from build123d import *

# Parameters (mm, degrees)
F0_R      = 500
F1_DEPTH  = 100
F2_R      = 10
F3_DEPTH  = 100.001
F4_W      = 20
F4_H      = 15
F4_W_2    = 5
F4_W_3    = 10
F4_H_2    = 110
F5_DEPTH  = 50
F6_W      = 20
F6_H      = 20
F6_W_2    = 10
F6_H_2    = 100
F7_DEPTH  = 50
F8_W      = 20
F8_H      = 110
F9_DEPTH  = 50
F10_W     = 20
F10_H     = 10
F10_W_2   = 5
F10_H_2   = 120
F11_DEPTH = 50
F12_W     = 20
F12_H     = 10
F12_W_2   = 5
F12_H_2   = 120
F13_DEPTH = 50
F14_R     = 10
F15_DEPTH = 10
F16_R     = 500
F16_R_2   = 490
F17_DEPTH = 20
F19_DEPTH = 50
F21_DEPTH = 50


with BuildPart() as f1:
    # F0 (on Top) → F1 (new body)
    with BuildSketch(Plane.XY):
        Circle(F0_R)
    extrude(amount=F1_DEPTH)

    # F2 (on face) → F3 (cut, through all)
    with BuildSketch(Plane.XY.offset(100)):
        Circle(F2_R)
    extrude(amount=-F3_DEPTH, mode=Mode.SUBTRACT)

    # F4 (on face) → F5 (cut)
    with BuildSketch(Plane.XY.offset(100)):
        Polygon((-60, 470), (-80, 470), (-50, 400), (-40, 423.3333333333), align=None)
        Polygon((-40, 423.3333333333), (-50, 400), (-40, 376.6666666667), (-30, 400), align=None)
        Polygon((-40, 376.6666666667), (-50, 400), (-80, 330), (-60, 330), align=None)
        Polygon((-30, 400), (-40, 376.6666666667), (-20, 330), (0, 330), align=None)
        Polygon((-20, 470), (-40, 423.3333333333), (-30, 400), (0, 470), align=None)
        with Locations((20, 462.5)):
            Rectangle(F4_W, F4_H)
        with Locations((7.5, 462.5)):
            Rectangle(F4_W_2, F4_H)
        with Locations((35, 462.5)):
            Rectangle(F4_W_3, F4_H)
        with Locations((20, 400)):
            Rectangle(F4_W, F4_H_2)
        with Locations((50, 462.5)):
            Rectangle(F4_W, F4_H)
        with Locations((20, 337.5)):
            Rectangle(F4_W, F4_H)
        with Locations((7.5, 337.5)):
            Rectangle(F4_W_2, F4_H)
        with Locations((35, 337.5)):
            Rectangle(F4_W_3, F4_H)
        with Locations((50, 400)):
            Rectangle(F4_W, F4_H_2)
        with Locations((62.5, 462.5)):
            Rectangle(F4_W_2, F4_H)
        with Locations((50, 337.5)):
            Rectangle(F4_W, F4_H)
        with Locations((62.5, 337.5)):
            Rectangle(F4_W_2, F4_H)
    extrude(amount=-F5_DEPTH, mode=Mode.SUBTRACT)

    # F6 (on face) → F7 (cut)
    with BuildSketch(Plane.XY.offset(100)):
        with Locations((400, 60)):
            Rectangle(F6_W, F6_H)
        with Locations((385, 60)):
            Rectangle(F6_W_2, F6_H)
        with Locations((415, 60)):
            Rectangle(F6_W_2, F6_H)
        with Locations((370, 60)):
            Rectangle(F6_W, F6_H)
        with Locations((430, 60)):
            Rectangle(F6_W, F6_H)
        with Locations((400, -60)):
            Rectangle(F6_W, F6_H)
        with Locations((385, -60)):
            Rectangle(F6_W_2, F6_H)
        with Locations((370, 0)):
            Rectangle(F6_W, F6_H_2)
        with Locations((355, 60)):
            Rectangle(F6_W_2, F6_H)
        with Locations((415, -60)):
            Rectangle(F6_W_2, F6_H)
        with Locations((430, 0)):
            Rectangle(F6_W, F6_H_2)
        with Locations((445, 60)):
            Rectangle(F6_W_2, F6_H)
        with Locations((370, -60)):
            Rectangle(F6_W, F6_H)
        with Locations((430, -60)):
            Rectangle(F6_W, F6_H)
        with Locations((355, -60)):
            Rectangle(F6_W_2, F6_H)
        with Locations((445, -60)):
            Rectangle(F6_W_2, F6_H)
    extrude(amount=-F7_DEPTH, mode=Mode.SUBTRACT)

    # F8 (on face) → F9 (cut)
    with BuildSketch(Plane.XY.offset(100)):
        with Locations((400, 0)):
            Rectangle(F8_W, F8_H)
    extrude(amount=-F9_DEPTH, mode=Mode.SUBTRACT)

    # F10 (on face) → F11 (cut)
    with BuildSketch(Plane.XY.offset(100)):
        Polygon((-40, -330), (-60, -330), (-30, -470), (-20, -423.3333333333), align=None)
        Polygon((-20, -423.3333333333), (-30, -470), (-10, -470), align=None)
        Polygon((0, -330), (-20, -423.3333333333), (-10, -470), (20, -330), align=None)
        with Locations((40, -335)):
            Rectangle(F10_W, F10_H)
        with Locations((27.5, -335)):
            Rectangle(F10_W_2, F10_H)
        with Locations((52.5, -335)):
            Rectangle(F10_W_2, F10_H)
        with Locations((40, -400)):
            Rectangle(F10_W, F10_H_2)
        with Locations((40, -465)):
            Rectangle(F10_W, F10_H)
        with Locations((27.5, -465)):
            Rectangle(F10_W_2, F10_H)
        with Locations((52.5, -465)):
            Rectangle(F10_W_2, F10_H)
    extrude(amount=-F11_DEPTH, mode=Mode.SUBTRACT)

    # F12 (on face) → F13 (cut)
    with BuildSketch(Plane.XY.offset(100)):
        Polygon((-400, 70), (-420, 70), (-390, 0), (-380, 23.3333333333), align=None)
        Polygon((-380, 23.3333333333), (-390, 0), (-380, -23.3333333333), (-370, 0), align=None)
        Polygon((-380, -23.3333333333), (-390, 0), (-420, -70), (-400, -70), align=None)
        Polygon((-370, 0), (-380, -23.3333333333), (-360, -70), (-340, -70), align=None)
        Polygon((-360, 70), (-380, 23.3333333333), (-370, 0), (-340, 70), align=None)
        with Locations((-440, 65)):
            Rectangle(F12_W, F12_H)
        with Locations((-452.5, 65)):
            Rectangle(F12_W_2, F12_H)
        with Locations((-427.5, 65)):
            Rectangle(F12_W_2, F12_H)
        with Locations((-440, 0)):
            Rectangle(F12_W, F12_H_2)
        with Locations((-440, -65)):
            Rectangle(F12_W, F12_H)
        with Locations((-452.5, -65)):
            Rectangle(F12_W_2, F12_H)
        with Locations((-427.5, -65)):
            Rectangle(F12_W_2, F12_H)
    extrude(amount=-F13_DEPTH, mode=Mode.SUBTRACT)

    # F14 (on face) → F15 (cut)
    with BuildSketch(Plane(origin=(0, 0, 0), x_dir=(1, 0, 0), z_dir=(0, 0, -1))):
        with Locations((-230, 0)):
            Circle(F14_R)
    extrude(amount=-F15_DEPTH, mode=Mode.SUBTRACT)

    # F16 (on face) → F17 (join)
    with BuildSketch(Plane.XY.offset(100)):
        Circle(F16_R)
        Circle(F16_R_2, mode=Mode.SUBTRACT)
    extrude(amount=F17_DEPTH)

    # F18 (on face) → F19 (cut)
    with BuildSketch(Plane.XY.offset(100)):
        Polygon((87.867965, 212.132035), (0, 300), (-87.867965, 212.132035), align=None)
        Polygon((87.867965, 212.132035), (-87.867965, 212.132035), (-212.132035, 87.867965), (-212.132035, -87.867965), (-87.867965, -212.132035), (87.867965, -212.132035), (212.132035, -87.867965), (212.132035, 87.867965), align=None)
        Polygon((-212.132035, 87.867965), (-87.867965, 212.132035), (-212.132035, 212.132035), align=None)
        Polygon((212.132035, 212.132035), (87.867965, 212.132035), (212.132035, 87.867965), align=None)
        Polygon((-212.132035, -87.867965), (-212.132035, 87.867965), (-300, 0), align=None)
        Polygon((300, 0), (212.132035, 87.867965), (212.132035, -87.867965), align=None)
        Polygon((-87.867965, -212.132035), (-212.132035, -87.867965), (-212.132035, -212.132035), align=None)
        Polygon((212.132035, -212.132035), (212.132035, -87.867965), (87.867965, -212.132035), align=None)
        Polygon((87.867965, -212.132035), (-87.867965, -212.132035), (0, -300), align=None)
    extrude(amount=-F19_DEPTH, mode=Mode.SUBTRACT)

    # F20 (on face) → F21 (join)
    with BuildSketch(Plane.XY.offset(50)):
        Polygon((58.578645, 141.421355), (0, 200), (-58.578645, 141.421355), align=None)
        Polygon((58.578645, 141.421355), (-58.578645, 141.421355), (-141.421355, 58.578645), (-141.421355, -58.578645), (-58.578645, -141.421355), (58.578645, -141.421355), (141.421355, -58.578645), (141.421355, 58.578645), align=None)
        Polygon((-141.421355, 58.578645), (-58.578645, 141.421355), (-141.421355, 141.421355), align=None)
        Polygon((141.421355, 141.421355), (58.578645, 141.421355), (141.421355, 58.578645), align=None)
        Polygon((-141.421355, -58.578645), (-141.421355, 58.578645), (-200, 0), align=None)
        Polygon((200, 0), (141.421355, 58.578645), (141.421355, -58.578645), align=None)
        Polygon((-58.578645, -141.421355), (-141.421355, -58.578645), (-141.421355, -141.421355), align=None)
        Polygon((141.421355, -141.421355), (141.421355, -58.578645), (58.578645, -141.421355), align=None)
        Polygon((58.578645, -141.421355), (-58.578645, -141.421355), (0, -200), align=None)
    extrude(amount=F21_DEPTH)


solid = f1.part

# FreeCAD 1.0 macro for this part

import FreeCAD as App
import Part
import Sketcher

V = App.Vector
Q = App.Units.Quantity

doc = App.newDocument("Part")
body = doc.addObject("PartDesign::Body", "Body")

# Sketch on XY plane
sketch1 = body.newObject("Sketcher::SketchObject", "Sketch")
sketch1.AttachmentSupport = (doc.getObject("XY_Plane"), [""])
sketch1.MapMode = "FlatFace"
sketch1.addGeometry(Part.Circle(V(0, 0, 0), V(0, 0, 1), 500), False)
sketch1.addConstraint(Sketcher.Constraint("Coincident", 0, 3, -1, 1))
sketch1.addConstraint(Sketcher.Constraint("Diameter", 0, Q("1000 mm")))
pad1 = body.newObject("PartDesign::Pad", "Pad")
pad1.Profile = sketch1
pad1.Length = 100

# Sketch on XY plane
sketch2 = body.newObject("Sketcher::SketchObject", "Sketch001")
sketch2.AttachmentSupport = (doc.getObject("XY_Plane"), [""])
sketch2.MapMode = "FlatFace"
sketch2.AttachmentOffset = App.Placement(V(0, 0, 100), App.Rotation())
sketch2.addGeometry(Part.Circle(V(0, 0, 0), V(0, 0, 1), 10), False)
sketch2.addConstraint(Sketcher.Constraint("Coincident", 0, 3, -1, 1))
sketch2.addConstraint(Sketcher.Constraint("Diameter", 0, Q("20 mm")))
pocket1 = body.newObject("PartDesign::Pocket", "Pocket")
pocket1.Profile = sketch2
pocket1.Type = "ThroughAll"

# Sketch on XY plane
sketch3 = body.newObject("Sketcher::SketchObject", "Sketch002")
sketch3.AttachmentSupport = (doc.getObject("XY_Plane"), [""])
sketch3.MapMode = "FlatFace"
sketch3.AttachmentOffset = App.Placement(V(0, 0, 100), App.Rotation())
sketch3.addGeometry(Part.LineSegment(V(-60, 470, 0), V(-80, 470, 0)), False)
sketch3.addGeometry(Part.LineSegment(V(-80, 470, 0), V(-50, 400, 0)), False)
sketch3.addGeometry(Part.LineSegment(V(-50, 400, 0), V(-80, 330, 0)), False)
sketch3.addGeometry(Part.LineSegment(V(-80, 330, 0), V(-60, 330, 0)), False)
sketch3.addGeometry(Part.LineSegment(V(-60, 330, 0), V(-40, 377, 0)), False)
sketch3.addGeometry(Part.LineSegment(V(-40, 377, 0), V(-20, 330, 0)), False)
sketch3.addGeometry(Part.LineSegment(V(-20, 330, 0), V(0, 330, 0)), False)
sketch3.addGeometry(Part.LineSegment(V(0, 330, 0), V(-30, 400, 0)), False)
sketch3.addGeometry(Part.LineSegment(V(-30, 400, 0), V(0, 470, 0)), False)
sketch3.addGeometry(Part.LineSegment(V(0, 470, 0), V(-20, 470, 0)), False)
sketch3.addGeometry(Part.LineSegment(V(-20, 470, 0), V(-40, 423, 0)), False)
sketch3.addGeometry(Part.LineSegment(V(-40, 423, 0), V(-60, 470, 0)), False)
sketch3.addGeometry(Part.LineSegment(V(5, 330, 0), V(65, 330, 0)), False)
sketch3.addGeometry(Part.LineSegment(V(65, 330, 0), V(65, 345, 0)), False)
sketch3.addGeometry(Part.LineSegment(V(65, 345, 0), V(60, 345, 0)), False)
sketch3.addGeometry(Part.LineSegment(V(60, 345, 0), V(60, 455, 0)), False)
sketch3.addGeometry(Part.LineSegment(V(60, 455, 0), V(65, 455, 0)), False)
sketch3.addGeometry(Part.LineSegment(V(65, 455, 0), V(65, 470, 0)), False)
sketch3.addGeometry(Part.LineSegment(V(65, 470, 0), V(5, 470, 0)), False)
sketch3.addGeometry(Part.LineSegment(V(5, 470, 0), V(5, 455, 0)), False)
sketch3.addGeometry(Part.LineSegment(V(5, 455, 0), V(10, 455, 0)), False)
sketch3.addGeometry(Part.LineSegment(V(10, 455, 0), V(10, 345, 0)), False)
sketch3.addGeometry(Part.LineSegment(V(10, 345, 0), V(5, 345, 0)), False)
sketch3.addGeometry(Part.LineSegment(V(5, 345, 0), V(5, 330, 0)), False)
sketch3.addGeometry(Part.LineSegment(V(40, 345, 0), V(30, 345, 0)), False)
sketch3.addGeometry(Part.LineSegment(V(30, 345, 0), V(30, 455, 0)), False)
sketch3.addGeometry(Part.LineSegment(V(30, 455, 0), V(40, 455, 0)), False)
sketch3.addGeometry(Part.LineSegment(V(40, 455, 0), V(40, 345, 0)), False)
sketch3.addConstraint(Sketcher.Constraint("Coincident", 0, 2, 1, 1))
sketch3.addConstraint(Sketcher.Constraint("Coincident", 1, 2, 2, 1))
sketch3.addConstraint(Sketcher.Constraint("Coincident", 2, 2, 3, 1))
sketch3.addConstraint(Sketcher.Constraint("Coincident", 3, 2, 4, 1))
sketch3.addConstraint(Sketcher.Constraint("Coincident", 4, 2, 5, 1))
sketch3.addConstraint(Sketcher.Constraint("Coincident", 5, 2, 6, 1))
sketch3.addConstraint(Sketcher.Constraint("Coincident", 6, 2, 7, 1))
sketch3.addConstraint(Sketcher.Constraint("Coincident", 7, 2, 8, 1))
sketch3.addConstraint(Sketcher.Constraint("Coincident", 8, 2, 9, 1))
sketch3.addConstraint(Sketcher.Constraint("Coincident", 9, 2, 10, 1))
sketch3.addConstraint(Sketcher.Constraint("Coincident", 10, 2, 11, 1))
sketch3.addConstraint(Sketcher.Constraint("Coincident", 11, 2, 0, 1))
sketch3.addConstraint(Sketcher.Constraint("Coincident", 12, 2, 13, 1))
sketch3.addConstraint(Sketcher.Constraint("Coincident", 13, 2, 14, 1))
sketch3.addConstraint(Sketcher.Constraint("Coincident", 14, 2, 15, 1))
sketch3.addConstraint(Sketcher.Constraint("Coincident", 15, 2, 16, 1))
sketch3.addConstraint(Sketcher.Constraint("Coincident", 16, 2, 17, 1))
sketch3.addConstraint(Sketcher.Constraint("Coincident", 17, 2, 18, 1))
sketch3.addConstraint(Sketcher.Constraint("Coincident", 18, 2, 19, 1))
sketch3.addConstraint(Sketcher.Constraint("Coincident", 19, 2, 20, 1))
sketch3.addConstraint(Sketcher.Constraint("Coincident", 20, 2, 21, 1))
sketch3.addConstraint(Sketcher.Constraint("Coincident", 21, 2, 22, 1))
sketch3.addConstraint(Sketcher.Constraint("Coincident", 22, 2, 23, 1))
sketch3.addConstraint(Sketcher.Constraint("Coincident", 23, 2, 12, 1))
sketch3.addConstraint(Sketcher.Constraint("Coincident", 24, 2, 25, 1))
sketch3.addConstraint(Sketcher.Constraint("Coincident", 25, 2, 26, 1))
sketch3.addConstraint(Sketcher.Constraint("Coincident", 26, 2, 27, 1))
sketch3.addConstraint(Sketcher.Constraint("Coincident", 27, 2, 24, 1))
sketch3.addConstraint(Sketcher.Constraint("Horizontal", 0))
sketch3.addConstraint(Sketcher.Constraint("Horizontal", 3))
sketch3.addConstraint(Sketcher.Constraint("Horizontal", 6))
sketch3.addConstraint(Sketcher.Constraint("Horizontal", 9))
sketch3.addConstraint(Sketcher.Constraint("Horizontal", 12))
sketch3.addConstraint(Sketcher.Constraint("Vertical", 13))
sketch3.addConstraint(Sketcher.Constraint("Horizontal", 14))
sketch3.addConstraint(Sketcher.Constraint("Vertical", 15))
sketch3.addConstraint(Sketcher.Constraint("Horizontal", 16))
sketch3.addConstraint(Sketcher.Constraint("Vertical", 17))
sketch3.addConstraint(Sketcher.Constraint("Horizontal", 18))
sketch3.addConstraint(Sketcher.Constraint("Vertical", 19))
sketch3.addConstraint(Sketcher.Constraint("Horizontal", 20))
sketch3.addConstraint(Sketcher.Constraint("Vertical", 21))
sketch3.addConstraint(Sketcher.Constraint("Horizontal", 22))
sketch3.addConstraint(Sketcher.Constraint("Vertical", 23))
sketch3.addConstraint(Sketcher.Constraint("Horizontal", 24))
sketch3.addConstraint(Sketcher.Constraint("Vertical", 25))
sketch3.addConstraint(Sketcher.Constraint("Horizontal", 26))
sketch3.addConstraint(Sketcher.Constraint("Vertical", 27))
sketch3.addConstraint(Sketcher.Constraint("PointOnObject", 6, 2, -2))
sketch3.addConstraint(Sketcher.Constraint("PointOnObject", 8, 2, -2))
sketch3.addConstraint(Sketcher.Constraint("Parallel", 2, 4))
sketch3.addConstraint(Sketcher.Constraint("Parallel", 1, 5))
sketch3.addConstraint(Sketcher.Constraint("Parallel", 5, 7))
sketch3.addConstraint(Sketcher.Constraint("Parallel", 4, 8))
sketch3.addConstraint(Sketcher.Constraint("Parallel", 8, 10))
sketch3.addConstraint(Sketcher.Constraint("Parallel", 7, 11))
sketch3.addConstraint(Sketcher.Constraint("Horizontal", 3, 2, 5, 2))
sketch3.addConstraint(Sketcher.Constraint("Horizontal", 1, 2, 7, 2))
sketch3.addConstraint(Sketcher.Constraint("Horizontal", 0, 2, 8, 2))
sketch3.addConstraint(Sketcher.Constraint("Horizontal", 6, 2, 12, 2))
sketch3.addConstraint(Sketcher.Constraint("Horizontal", 11, 2, 17, 2))
sketch3.addConstraint(Sketcher.Constraint("Horizontal", 16, 2, 19, 2))
sketch3.addConstraint(Sketcher.Constraint("Horizontal", 14, 2, 21, 2))
sketch3.addConstraint(Sketcher.Constraint("Horizontal", 22, 2, 24, 2))
sketch3.addConstraint(Sketcher.Constraint("Horizontal", 20, 2, 25, 2))
sketch3.addConstraint(Sketcher.Constraint("Vertical", 0, 2, 2, 2))
sketch3.addConstraint(Sketcher.Constraint("Vertical", 5, 2, 9, 2))
sketch3.addConstraint(Sketcher.Constraint("Vertical", 4, 2, 10, 2))
sketch3.addConstraint(Sketcher.Constraint("Vertical", 13, 2, 16, 2))
sketch3.addConstraint(Sketcher.Constraint("Vertical", 19, 2, 22, 2))
sketch3.addConstraint(Sketcher.Constraint("Equal", 3, 6))
sketch3.addConstraint(Sketcher.Constraint("Equal", 16, 20))
sketch3.addConstraint(Sketcher.Constraint("Equal", 13, 17))
sketch3.addConstraint(Sketcher.Constraint("DistanceX", 0, 2, 0, 1, Q("20 mm")))
sketch3.addConstraint(Sketcher.Constraint("DistanceX", 12, 1, 12, 2, Q("60 mm")))
sketch3.addConstraint(Sketcher.Constraint("DistanceX", 14, 2, 14, 1, Q("5 mm")))
sketch3.addConstraint(Sketcher.Constraint("DistanceX", 24, 2, 24, 1, Q("10 mm")))
sketch3.addConstraint(Sketcher.Constraint("DistanceY", 13, 1, 13, 2, Q("15 mm")))
sketch3.addConstraint(Sketcher.Constraint("DistanceY", 15, 1, 15, 2, Q("110 mm")))
sketch3.addConstraint(Sketcher.Constraint("DistanceX", 0, 2, -1, 1, Q("80 mm")))
sketch3.addConstraint(Sketcher.Constraint("DistanceY", -1, 1, 0, 2, Q("470 mm")))
sketch3.addConstraint(Sketcher.Constraint("DistanceX", 1, 2, -1, 1, Q("50 mm")))
sketch3.addConstraint(Sketcher.Constraint("DistanceX", -1, 1, 12, 2, Q("65 mm")))
sketch3.addConstraint(Sketcher.Constraint("DistanceX", -1, 1, 24, 2, Q("30 mm")))
pocket2 = body.newObject("PartDesign::Pocket", "Pocket001")
pocket2.Profile = sketch3
pocket2.Length = 50

# Sketch on XY plane
sketch4 = body.newObject("Sketcher::SketchObject", "Sketch003")
sketch4.AttachmentSupport = (doc.getObject("XY_Plane"), [""])
sketch4.MapMode = "FlatFace"
sketch4.AttachmentOffset = App.Placement(V(0, 0, 100), App.Rotation())
sketch4.addGeometry(Part.LineSegment(V(440, -50, 0), V(440, 50, 0)), False)
sketch4.addGeometry(Part.LineSegment(V(440, 50, 0), V(450, 50, 0)), False)
sketch4.addGeometry(Part.LineSegment(V(450, 50, 0), V(450, 70, 0)), False)
sketch4.addGeometry(Part.LineSegment(V(450, 70, 0), V(350, 70, 0)), False)
sketch4.addGeometry(Part.LineSegment(V(350, 70, 0), V(350, 50, 0)), False)
sketch4.addGeometry(Part.LineSegment(V(350, 50, 0), V(360, 50, 0)), False)
sketch4.addGeometry(Part.LineSegment(V(360, 50, 0), V(360, -50, 0)), False)
sketch4.addGeometry(Part.LineSegment(V(360, -50, 0), V(350, -50, 0)), False)
sketch4.addGeometry(Part.LineSegment(V(350, -50, 0), V(350, -70, 0)), False)
sketch4.addGeometry(Part.LineSegment(V(350, -70, 0), V(450, -70, 0)), False)
sketch4.addGeometry(Part.LineSegment(V(450, -70, 0), V(450, -50, 0)), False)
sketch4.addGeometry(Part.LineSegment(V(450, -50, 0), V(440, -50, 0)), False)
sketch4.addGeometry(Part.LineSegment(V(420, 50, 0), V(420, -50, 0)), False)
sketch4.addGeometry(Part.LineSegment(V(420, -50, 0), V(380, -50, 0)), False)
sketch4.addGeometry(Part.LineSegment(V(380, -50, 0), V(380, 50, 0)), False)
sketch4.addGeometry(Part.LineSegment(V(380, 50, 0), V(420, 50, 0)), False)
sketch4.addConstraint(Sketcher.Constraint("Coincident", 0, 2, 1, 1))
sketch4.addConstraint(Sketcher.Constraint("Coincident", 1, 2, 2, 1))
sketch4.addConstraint(Sketcher.Constraint("Coincident", 2, 2, 3, 1))
sketch4.addConstraint(Sketcher.Constraint("Coincident", 3, 2, 4, 1))
sketch4.addConstraint(Sketcher.Constraint("Coincident", 4, 2, 5, 1))
sketch4.addConstraint(Sketcher.Constraint("Coincident", 5, 2, 6, 1))
sketch4.addConstraint(Sketcher.Constraint("Coincident", 6, 2, 7, 1))
sketch4.addConstraint(Sketcher.Constraint("Coincident", 7, 2, 8, 1))
sketch4.addConstraint(Sketcher.Constraint("Coincident", 8, 2, 9, 1))
sketch4.addConstraint(Sketcher.Constraint("Coincident", 9, 2, 10, 1))
sketch4.addConstraint(Sketcher.Constraint("Coincident", 10, 2, 11, 1))
sketch4.addConstraint(Sketcher.Constraint("Coincident", 11, 2, 0, 1))
sketch4.addConstraint(Sketcher.Constraint("Coincident", 12, 2, 13, 1))
sketch4.addConstraint(Sketcher.Constraint("Coincident", 13, 2, 14, 1))
sketch4.addConstraint(Sketcher.Constraint("Coincident", 14, 2, 15, 1))
sketch4.addConstraint(Sketcher.Constraint("Coincident", 15, 2, 12, 1))
sketch4.addConstraint(Sketcher.Constraint("Vertical", 0))
sketch4.addConstraint(Sketcher.Constraint("Horizontal", 1))
sketch4.addConstraint(Sketcher.Constraint("Vertical", 2))
sketch4.addConstraint(Sketcher.Constraint("Horizontal", 3))
sketch4.addConstraint(Sketcher.Constraint("Vertical", 4))
sketch4.addConstraint(Sketcher.Constraint("Horizontal", 5))
sketch4.addConstraint(Sketcher.Constraint("Vertical", 6))
sketch4.addConstraint(Sketcher.Constraint("Horizontal", 7))
sketch4.addConstraint(Sketcher.Constraint("Vertical", 8))
sketch4.addConstraint(Sketcher.Constraint("Horizontal", 9))
sketch4.addConstraint(Sketcher.Constraint("Vertical", 10))
sketch4.addConstraint(Sketcher.Constraint("Horizontal", 11))
sketch4.addConstraint(Sketcher.Constraint("Vertical", 12))
sketch4.addConstraint(Sketcher.Constraint("Horizontal", 13))
sketch4.addConstraint(Sketcher.Constraint("Vertical", 14))
sketch4.addConstraint(Sketcher.Constraint("Horizontal", 15))
sketch4.addConstraint(Sketcher.Constraint("Symmetric", 4, 2, 7, 2, -1))
sketch4.addConstraint(Sketcher.Constraint("Symmetric", 2, 2, 9, 2, -1))
sketch4.addConstraint(Sketcher.Constraint("Horizontal", 1, 2, 4, 2))
sketch4.addConstraint(Sketcher.Constraint("Horizontal", 7, 2, 10, 2))
sketch4.addConstraint(Sketcher.Constraint("Horizontal", 11, 2, 12, 2))
sketch4.addConstraint(Sketcher.Constraint("Horizontal", 5, 2, 14, 2))
sketch4.addConstraint(Sketcher.Constraint("Equal", 1, 5))
sketch4.addConstraint(Sketcher.Constraint("Equal", 9, 0))
sketch4.addConstraint(Sketcher.Constraint("DistanceX", 1, 1, 1, 2, Q("10 mm")))
sketch4.addConstraint(Sketcher.Constraint("DistanceX", 3, 2, 3, 1, Q("100 mm")))
sketch4.addConstraint(Sketcher.Constraint("DistanceX", 13, 2, 13, 1, Q("40 mm")))
sketch4.addConstraint(Sketcher.Constraint("DistanceY", 2, 1, 2, 2, Q("20 mm")))
sketch4.addConstraint(Sketcher.Constraint("DistanceX", -1, 1, 0, 2, Q("440 mm")))
sketch4.addConstraint(Sketcher.Constraint("DistanceX", -1, 1, 12, 2, Q("420 mm")))
pocket3 = body.newObject("PartDesign::Pocket", "Pocket002")
pocket3.Profile = sketch4
pocket3.Length = 50

# Sketch on XY plane
sketch5 = body.newObject("Sketcher::SketchObject", "Sketch004")
sketch5.AttachmentSupport = (doc.getObject("XY_Plane"), [""])
sketch5.MapMode = "FlatFace"
sketch5.AttachmentOffset = App.Placement(V(0, 0, 100), App.Rotation())
sketch5.addGeometry(Part.LineSegment(V(390, 55, 0), V(390, -55, 0)), False)
sketch5.addGeometry(Part.LineSegment(V(390, -55, 0), V(410, -55, 0)), False)
sketch5.addGeometry(Part.LineSegment(V(410, -55, 0), V(410, 55, 0)), False)
sketch5.addGeometry(Part.LineSegment(V(410, 55, 0), V(390, 55, 0)), False)
sketch5.addConstraint(Sketcher.Constraint("Coincident", 0, 2, 1, 1))
sketch5.addConstraint(Sketcher.Constraint("Coincident", 1, 2, 2, 1))
sketch5.addConstraint(Sketcher.Constraint("Coincident", 2, 2, 3, 1))
sketch5.addConstraint(Sketcher.Constraint("Coincident", 3, 2, 0, 1))
sketch5.addConstraint(Sketcher.Constraint("Vertical", 0))
sketch5.addConstraint(Sketcher.Constraint("Horizontal", 1))
sketch5.addConstraint(Sketcher.Constraint("Vertical", 2))
sketch5.addConstraint(Sketcher.Constraint("Horizontal", 3))
sketch5.addConstraint(Sketcher.Constraint("DistanceX", 1, 1, 1, 2, Q("20 mm")))
sketch5.addConstraint(Sketcher.Constraint("DistanceY", 0, 2, 0, 1, Q("110 mm")))
sketch5.addConstraint(Sketcher.Constraint("DistanceX", -1, 1, 0, 2, Q("390 mm")))
sketch5.addConstraint(Sketcher.Constraint("DistanceY", 0, 2, -1, 1, Q("55 mm")))
pocket4 = body.newObject("PartDesign::Pocket", "Pocket003")
pocket4.Profile = sketch5
pocket4.Length = 50

# Sketch on XY plane
sketch6 = body.newObject("Sketcher::SketchObject", "Sketch005")
sketch6.AttachmentSupport = (doc.getObject("XY_Plane"), [""])
sketch6.MapMode = "FlatFace"
sketch6.AttachmentOffset = App.Placement(V(0, 0, 100), App.Rotation())
sketch6.addGeometry(Part.LineSegment(V(-40, -330, 0), V(-60, -330, 0)), False)
sketch6.addGeometry(Part.LineSegment(V(-60, -330, 0), V(-30, -470, 0)), False)
sketch6.addGeometry(Part.LineSegment(V(-30, -470, 0), V(-10, -470, 0)), False)
sketch6.addGeometry(Part.LineSegment(V(-10, -470, 0), V(20, -330, 0)), False)
sketch6.addGeometry(Part.LineSegment(V(20, -330, 0), V(0, -330, 0)), False)
sketch6.addGeometry(Part.LineSegment(V(0, -330, 0), V(-20, -423, 0)), False)
sketch6.addGeometry(Part.LineSegment(V(-20, -423, 0), V(-40, -330, 0)), False)
sketch6.addGeometry(Part.LineSegment(V(25, -330, 0), V(25, -340, 0)), False)
sketch6.addGeometry(Part.LineSegment(V(25, -340, 0), V(30, -340, 0)), False)
sketch6.addGeometry(Part.LineSegment(V(30, -340, 0), V(30, -460, 0)), False)
sketch6.addGeometry(Part.LineSegment(V(30, -460, 0), V(25, -460, 0)), False)
sketch6.addGeometry(Part.LineSegment(V(25, -460, 0), V(25, -470, 0)), False)
sketch6.addGeometry(Part.LineSegment(V(25, -470, 0), V(55, -470, 0)), False)
sketch6.addGeometry(Part.LineSegment(V(55, -470, 0), V(55, -460, 0)), False)
sketch6.addGeometry(Part.LineSegment(V(55, -460, 0), V(50, -460, 0)), False)
sketch6.addGeometry(Part.LineSegment(V(50, -460, 0), V(50, -340, 0)), False)
sketch6.addGeometry(Part.LineSegment(V(50, -340, 0), V(55, -340, 0)), False)
sketch6.addGeometry(Part.LineSegment(V(55, -340, 0), V(55, -330, 0)), False)
sketch6.addGeometry(Part.LineSegment(V(55, -330, 0), V(25, -330, 0)), False)
sketch6.addConstraint(Sketcher.Constraint("Coincident", 0, 2, 1, 1))
sketch6.addConstraint(Sketcher.Constraint("Coincident", 1, 2, 2, 1))
sketch6.addConstraint(Sketcher.Constraint("Coincident", 2, 2, 3, 1))
sketch6.addConstraint(Sketcher.Constraint("Coincident", 3, 2, 4, 1))
sketch6.addConstraint(Sketcher.Constraint("Coincident", 4, 2, 5, 1))
sketch6.addConstraint(Sketcher.Constraint("Coincident", 5, 2, 6, 1))
sketch6.addConstraint(Sketcher.Constraint("Coincident", 6, 2, 0, 1))
sketch6.addConstraint(Sketcher.Constraint("Coincident", 7, 2, 8, 1))
sketch6.addConstraint(Sketcher.Constraint("Coincident", 8, 2, 9, 1))
sketch6.addConstraint(Sketcher.Constraint("Coincident", 9, 2, 10, 1))
sketch6.addConstraint(Sketcher.Constraint("Coincident", 10, 2, 11, 1))
sketch6.addConstraint(Sketcher.Constraint("Coincident", 11, 2, 12, 1))
sketch6.addConstraint(Sketcher.Constraint("Coincident", 12, 2, 13, 1))
sketch6.addConstraint(Sketcher.Constraint("Coincident", 13, 2, 14, 1))
sketch6.addConstraint(Sketcher.Constraint("Coincident", 14, 2, 15, 1))
sketch6.addConstraint(Sketcher.Constraint("Coincident", 15, 2, 16, 1))
sketch6.addConstraint(Sketcher.Constraint("Coincident", 16, 2, 17, 1))
sketch6.addConstraint(Sketcher.Constraint("Coincident", 17, 2, 18, 1))
sketch6.addConstraint(Sketcher.Constraint("Coincident", 18, 2, 7, 1))
sketch6.addConstraint(Sketcher.Constraint("Horizontal", 0))
sketch6.addConstraint(Sketcher.Constraint("Horizontal", 2))
sketch6.addConstraint(Sketcher.Constraint("Horizontal", 4))
sketch6.addConstraint(Sketcher.Constraint("Vertical", 7))
sketch6.addConstraint(Sketcher.Constraint("Horizontal", 8))
sketch6.addConstraint(Sketcher.Constraint("Vertical", 9))
sketch6.addConstraint(Sketcher.Constraint("Horizontal", 10))
sketch6.addConstraint(Sketcher.Constraint("Vertical", 11))
sketch6.addConstraint(Sketcher.Constraint("Horizontal", 12))
sketch6.addConstraint(Sketcher.Constraint("Vertical", 13))
sketch6.addConstraint(Sketcher.Constraint("Horizontal", 14))
sketch6.addConstraint(Sketcher.Constraint("Vertical", 15))
sketch6.addConstraint(Sketcher.Constraint("Horizontal", 16))
sketch6.addConstraint(Sketcher.Constraint("Vertical", 17))
sketch6.addConstraint(Sketcher.Constraint("Horizontal", 18))
sketch6.addConstraint(Sketcher.Constraint("PointOnObject", 4, 2, -2))
sketch6.addConstraint(Sketcher.Constraint("Parallel", 3, 5))
sketch6.addConstraint(Sketcher.Constraint("Parallel", 1, 6))
sketch6.addConstraint(Sketcher.Constraint("Horizontal", 0, 2, 3, 2))
sketch6.addConstraint(Sketcher.Constraint("Horizontal", 2, 2, 11, 2))
sketch6.addConstraint(Sketcher.Constraint("Horizontal", 10, 2, 13, 2))
sketch6.addConstraint(Sketcher.Constraint("Horizontal", 8, 2, 15, 2))
sketch6.addConstraint(Sketcher.Constraint("Horizontal", 6, 2, 17, 2))
sketch6.addConstraint(Sketcher.Constraint("Vertical", 7, 2, 10, 2))
sketch6.addConstraint(Sketcher.Constraint("Vertical", 13, 2, 16, 2))
sketch6.addConstraint(Sketcher.Constraint("Equal", 0, 2))
sketch6.addConstraint(Sketcher.Constraint("Equal", 2, 4))
sketch6.addConstraint(Sketcher.Constraint("Equal", 10, 14))
sketch6.addConstraint(Sketcher.Constraint("Equal", 7, 11))
sketch6.addConstraint(Sketcher.Constraint("Equal", 1, 3))
sketch6.addConstraint(Sketcher.Constraint("DistanceX", 0, 2, 0, 1, Q("20 mm")))
sketch6.addConstraint(Sketcher.Constraint("DistanceX", 8, 1, 8, 2, Q("5 mm")))
sketch6.addConstraint(Sketcher.Constraint("DistanceX", 12, 1, 12, 2, Q("30 mm")))
sketch6.addConstraint(Sketcher.Constraint("DistanceY", 7, 2, 7, 1, Q("10 mm")))
sketch6.addConstraint(Sketcher.Constraint("DistanceY", 9, 2, 9, 1, Q("120 mm")))
sketch6.addConstraint(Sketcher.Constraint("DistanceX", 0, 2, -1, 1, Q("60 mm")))
sketch6.addConstraint(Sketcher.Constraint("DistanceY", 0, 2, -1, 1, Q("330 mm")))
sketch6.addConstraint(Sketcher.Constraint("DistanceX", -1, 1, 7, 2, Q("25 mm")))
pocket5 = body.newObject("PartDesign::Pocket", "Pocket004")
pocket5.Profile = sketch6
pocket5.Length = 50

# Sketch on XY plane
sketch7 = body.newObject("Sketcher::SketchObject", "Sketch006")
sketch7.AttachmentSupport = (doc.getObject("XY_Plane"), [""])
sketch7.MapMode = "FlatFace"
sketch7.AttachmentOffset = App.Placement(V(0, 0, 100), App.Rotation())
sketch7.addGeometry(Part.LineSegment(V(-400, 70, 0), V(-420, 70, 0)), False)
sketch7.addGeometry(Part.LineSegment(V(-420, 70, 0), V(-390, 0, 0)), False)
sketch7.addGeometry(Part.LineSegment(V(-390, 0, 0), V(-420, -70, 0)), False)
sketch7.addGeometry(Part.LineSegment(V(-420, -70, 0), V(-400, -70, 0)), False)
sketch7.addGeometry(Part.LineSegment(V(-400, -70, 0), V(-380, -23, 0)), False)
sketch7.addGeometry(Part.LineSegment(V(-380, -23, 0), V(-360, -70, 0)), False)
sketch7.addGeometry(Part.LineSegment(V(-360, -70, 0), V(-340, -70, 0)), False)
sketch7.addGeometry(Part.LineSegment(V(-340, -70, 0), V(-370, 0, 0)), False)
sketch7.addGeometry(Part.LineSegment(V(-370, 0, 0), V(-340, 70, 0)), False)
sketch7.addGeometry(Part.LineSegment(V(-340, 70, 0), V(-360, 70, 0)), False)
sketch7.addGeometry(Part.LineSegment(V(-360, 70, 0), V(-380, 23, 0)), False)
sketch7.addGeometry(Part.LineSegment(V(-380, 23, 0), V(-400, 70, 0)), False)
sketch7.addGeometry(Part.LineSegment(V(-455, 70, 0), V(-455, 60, 0)), False)
sketch7.addGeometry(Part.LineSegment(V(-455, 60, 0), V(-450, 60, 0)), False)
sketch7.addGeometry(Part.LineSegment(V(-450, 60, 0), V(-450, -60, 0)), False)
sketch7.addGeometry(Part.LineSegment(V(-450, -60, 0), V(-455, -60, 0)), False)
sketch7.addGeometry(Part.LineSegment(V(-455, -60, 0), V(-455, -70, 0)), False)
sketch7.addGeometry(Part.LineSegment(V(-455, -70, 0), V(-425, -70, 0)), False)
sketch7.addGeometry(Part.LineSegment(V(-425, -70, 0), V(-425, -60, 0)), False)
sketch7.addGeometry(Part.LineSegment(V(-425, -60, 0), V(-430, -60, 0)), False)
sketch7.addGeometry(Part.LineSegment(V(-430, -60, 0), V(-430, 60, 0)), False)
sketch7.addGeometry(Part.LineSegment(V(-430, 60, 0), V(-425, 60, 0)), False)
sketch7.addGeometry(Part.LineSegment(V(-425, 60, 0), V(-425, 70, 0)), False)
sketch7.addGeometry(Part.LineSegment(V(-425, 70, 0), V(-455, 70, 0)), False)
sketch7.addConstraint(Sketcher.Constraint("Coincident", 0, 2, 1, 1))
sketch7.addConstraint(Sketcher.Constraint("Coincident", 1, 2, 2, 1))
sketch7.addConstraint(Sketcher.Constraint("Coincident", 2, 2, 3, 1))
sketch7.addConstraint(Sketcher.Constraint("Coincident", 3, 2, 4, 1))
sketch7.addConstraint(Sketcher.Constraint("Coincident", 4, 2, 5, 1))
sketch7.addConstraint(Sketcher.Constraint("Coincident", 5, 2, 6, 1))
sketch7.addConstraint(Sketcher.Constraint("Coincident", 6, 2, 7, 1))
sketch7.addConstraint(Sketcher.Constraint("Coincident", 7, 2, 8, 1))
sketch7.addConstraint(Sketcher.Constraint("Coincident", 8, 2, 9, 1))
sketch7.addConstraint(Sketcher.Constraint("Coincident", 9, 2, 10, 1))
sketch7.addConstraint(Sketcher.Constraint("Coincident", 10, 2, 11, 1))
sketch7.addConstraint(Sketcher.Constraint("Coincident", 11, 2, 0, 1))
sketch7.addConstraint(Sketcher.Constraint("Coincident", 12, 2, 13, 1))
sketch7.addConstraint(Sketcher.Constraint("Coincident", 13, 2, 14, 1))
sketch7.addConstraint(Sketcher.Constraint("Coincident", 14, 2, 15, 1))
sketch7.addConstraint(Sketcher.Constraint("Coincident", 15, 2, 16, 1))
sketch7.addConstraint(Sketcher.Constraint("Coincident", 16, 2, 17, 1))
sketch7.addConstraint(Sketcher.Constraint("Coincident", 17, 2, 18, 1))
sketch7.addConstraint(Sketcher.Constraint("Coincident", 18, 2, 19, 1))
sketch7.addConstraint(Sketcher.Constraint("Coincident", 19, 2, 20, 1))
sketch7.addConstraint(Sketcher.Constraint("Coincident", 20, 2, 21, 1))
sketch7.addConstraint(Sketcher.Constraint("Coincident", 21, 2, 22, 1))
sketch7.addConstraint(Sketcher.Constraint("Coincident", 22, 2, 23, 1))
sketch7.addConstraint(Sketcher.Constraint("Coincident", 23, 2, 12, 1))
sketch7.addConstraint(Sketcher.Constraint("Horizontal", 0))
sketch7.addConstraint(Sketcher.Constraint("Horizontal", 3))
sketch7.addConstraint(Sketcher.Constraint("Horizontal", 6))
sketch7.addConstraint(Sketcher.Constraint("Horizontal", 9))
sketch7.addConstraint(Sketcher.Constraint("Vertical", 12))
sketch7.addConstraint(Sketcher.Constraint("Horizontal", 13))
sketch7.addConstraint(Sketcher.Constraint("Vertical", 14))
sketch7.addConstraint(Sketcher.Constraint("Horizontal", 15))
sketch7.addConstraint(Sketcher.Constraint("Vertical", 16))
sketch7.addConstraint(Sketcher.Constraint("Horizontal", 17))
sketch7.addConstraint(Sketcher.Constraint("Vertical", 18))
sketch7.addConstraint(Sketcher.Constraint("Horizontal", 19))
sketch7.addConstraint(Sketcher.Constraint("Vertical", 20))
sketch7.addConstraint(Sketcher.Constraint("Horizontal", 21))
sketch7.addConstraint(Sketcher.Constraint("Vertical", 22))
sketch7.addConstraint(Sketcher.Constraint("Horizontal", 23))
sketch7.addConstraint(Sketcher.Constraint("Symmetric", 0, 2, 2, 2, -1))
sketch7.addConstraint(Sketcher.Constraint("Symmetric", 6, 2, 8, 2, -1))
sketch7.addConstraint(Sketcher.Constraint("Symmetric", 4, 2, 10, 2, -1))
sketch7.addConstraint(Sketcher.Constraint("Symmetric", 12, 2, 15, 2, -1))
sketch7.addConstraint(Sketcher.Constraint("Symmetric", 18, 2, 21, 2, -1))
sketch7.addConstraint(Sketcher.Constraint("PointOnObject", 1, 2, -1))
sketch7.addConstraint(Sketcher.Constraint("PointOnObject", 7, 2, -1))
sketch7.addConstraint(Sketcher.Constraint("Parallel", 2, 4))
sketch7.addConstraint(Sketcher.Constraint("Parallel", 1, 5))
sketch7.addConstraint(Sketcher.Constraint("Parallel", 5, 7))
sketch7.addConstraint(Sketcher.Constraint("Parallel", 8, 10))
sketch7.addConstraint(Sketcher.Constraint("Parallel", 7, 11))
sketch7.addConstraint(Sketcher.Constraint("Horizontal", 3, 2, 5, 2))
sketch7.addConstraint(Sketcher.Constraint("Horizontal", 6, 2, 16, 2))
sketch7.addConstraint(Sketcher.Constraint("Horizontal", 15, 2, 18, 2))
sketch7.addConstraint(Sketcher.Constraint("Horizontal", 11, 2, 22, 2))
sketch7.addConstraint(Sketcher.Constraint("Equal", 3, 6))
sketch7.addConstraint(Sketcher.Constraint("Equal", 15, 19))
sketch7.addConstraint(Sketcher.Constraint("DistanceX", 0, 2, 0, 1, Q("20 mm")))
sketch7.addConstraint(Sketcher.Constraint("DistanceX", 13, 1, 13, 2, Q("5 mm")))
sketch7.addConstraint(Sketcher.Constraint("DistanceX", 17, 1, 17, 2, Q("30 mm")))
sketch7.addConstraint(Sketcher.Constraint("DistanceY", 12, 2, 12, 1, Q("10 mm")))
sketch7.addConstraint(Sketcher.Constraint("DistanceY", 14, 2, 14, 1, Q("120 mm")))
sketch7.addConstraint(Sketcher.Constraint("DistanceX", 0, 2, -1, 1, Q("420 mm")))
sketch7.addConstraint(Sketcher.Constraint("DistanceX", 1, 2, -1, 1, Q("390 mm")))
sketch7.addConstraint(Sketcher.Constraint("DistanceX", 4, 2, -1, 1, Q("380 mm")))
sketch7.addConstraint(Sketcher.Constraint("DistanceX", 12, 2, -1, 1, Q("455 mm")))
pocket6 = body.newObject("PartDesign::Pocket", "Pocket005")
pocket6.Profile = sketch7
pocket6.Length = 50

# Sketch on XY plane
sketch8 = body.newObject("Sketcher::SketchObject", "Sketch007")
sketch8.AttachmentSupport = (doc.getObject("XY_Plane"), [""])
sketch8.MapMode = "FlatFace"
sketch8.addGeometry(Part.Circle(V(-230, 0, 0), V(0, 0, 1), 10), False)
sketch8.addConstraint(Sketcher.Constraint("PointOnObject", 0, 3, -1))
sketch8.addConstraint(Sketcher.Constraint("Diameter", 0, Q("20 mm")))
sketch8.addConstraint(Sketcher.Constraint("DistanceX", 0, 3, -1, 1, Q("230 mm")))
pocket7 = body.newObject("PartDesign::Pocket", "Pocket006")
pocket7.Profile = sketch8
pocket7.Length = 10
pocket7.Reversed = True

# Sketch on XY plane
sketch9 = body.newObject("Sketcher::SketchObject", "Sketch008")
sketch9.AttachmentSupport = (doc.getObject("XY_Plane"), [""])
sketch9.MapMode = "FlatFace"
sketch9.AttachmentOffset = App.Placement(V(0, 0, 100), App.Rotation())
sketch9.addGeometry(Part.Circle(V(0, 0, 0), V(0, 0, 1), 500), False)
sketch9.addGeometry(Part.Circle(V(0, 0, 0), V(0, 0, 1), 490), False)
sketch9.addConstraint(Sketcher.Constraint("Coincident", 0, 3, -1, 1))
sketch9.addConstraint(Sketcher.Constraint("Coincident", 1, 3, -1, 1))
sketch9.addConstraint(Sketcher.Constraint("Diameter", 0, Q("1000 mm")))
sketch9.addConstraint(Sketcher.Constraint("Diameter", 1, Q("980 mm")))
pad2 = body.newObject("PartDesign::Pad", "Pad001")
pad2.Profile = sketch9
pad2.Length = 20

# Sketch on XY plane
sketch10 = body.newObject("Sketcher::SketchObject", "Sketch009")
sketch10.AttachmentSupport = (doc.getObject("XY_Plane"), [""])
sketch10.MapMode = "FlatFace"
sketch10.AttachmentOffset = App.Placement(V(0, 0, 100), App.Rotation())
sketch10.addGeometry(Part.LineSegment(V(0, 300, 0), V(-88, 212, 0)), False)
sketch10.addGeometry(Part.LineSegment(V(-88, 212, 0), V(-212, 212, 0)), False)
sketch10.addGeometry(Part.LineSegment(V(-212, 212, 0), V(-212, 88, 0)), False)
sketch10.addGeometry(Part.LineSegment(V(-212, 88, 0), V(-300, 0, 0)), False)
sketch10.addGeometry(Part.LineSegment(V(-300, 0, 0), V(-212, -88, 0)), False)
sketch10.addGeometry(Part.LineSegment(V(-212, -88, 0), V(-212, -212, 0)), False)
sketch10.addGeometry(Part.LineSegment(V(-212, -212, 0), V(-88, -212, 0)), False)
sketch10.addGeometry(Part.LineSegment(V(-88, -212, 0), V(0, -300, 0)), False)
sketch10.addGeometry(Part.LineSegment(V(0, -300, 0), V(88, -212, 0)), False)
sketch10.addGeometry(Part.LineSegment(V(88, -212, 0), V(212, -212, 0)), False)
sketch10.addGeometry(Part.LineSegment(V(212, -212, 0), V(212, -88, 0)), False)
sketch10.addGeometry(Part.LineSegment(V(212, -88, 0), V(300, 0, 0)), False)
sketch10.addGeometry(Part.LineSegment(V(300, 0, 0), V(212, 88, 0)), False)
sketch10.addGeometry(Part.LineSegment(V(212, 88, 0), V(212, 212, 0)), False)
sketch10.addGeometry(Part.LineSegment(V(212, 212, 0), V(88, 212, 0)), False)
sketch10.addGeometry(Part.LineSegment(V(88, 212, 0), V(0, 300, 0)), False)
sketch10.addConstraint(Sketcher.Constraint("Coincident", 0, 2, 1, 1))
sketch10.addConstraint(Sketcher.Constraint("Coincident", 1, 2, 2, 1))
sketch10.addConstraint(Sketcher.Constraint("Coincident", 2, 2, 3, 1))
sketch10.addConstraint(Sketcher.Constraint("Coincident", 3, 2, 4, 1))
sketch10.addConstraint(Sketcher.Constraint("Coincident", 4, 2, 5, 1))
sketch10.addConstraint(Sketcher.Constraint("Coincident", 5, 2, 6, 1))
sketch10.addConstraint(Sketcher.Constraint("Coincident", 6, 2, 7, 1))
sketch10.addConstraint(Sketcher.Constraint("Coincident", 7, 2, 8, 1))
sketch10.addConstraint(Sketcher.Constraint("Coincident", 8, 2, 9, 1))
sketch10.addConstraint(Sketcher.Constraint("Coincident", 9, 2, 10, 1))
sketch10.addConstraint(Sketcher.Constraint("Coincident", 10, 2, 11, 1))
sketch10.addConstraint(Sketcher.Constraint("Coincident", 11, 2, 12, 1))
sketch10.addConstraint(Sketcher.Constraint("Coincident", 12, 2, 13, 1))
sketch10.addConstraint(Sketcher.Constraint("Coincident", 13, 2, 14, 1))
sketch10.addConstraint(Sketcher.Constraint("Coincident", 14, 2, 15, 1))
sketch10.addConstraint(Sketcher.Constraint("Coincident", 15, 2, 0, 1))
sketch10.addConstraint(Sketcher.Constraint("Horizontal", 1))
sketch10.addConstraint(Sketcher.Constraint("Vertical", 2))
sketch10.addConstraint(Sketcher.Constraint("Vertical", 5))
sketch10.addConstraint(Sketcher.Constraint("Horizontal", 6))
sketch10.addConstraint(Sketcher.Constraint("Horizontal", 9))
sketch10.addConstraint(Sketcher.Constraint("Vertical", 10))
sketch10.addConstraint(Sketcher.Constraint("Vertical", 13))
sketch10.addConstraint(Sketcher.Constraint("Horizontal", 14))
sketch10.addConstraint(Sketcher.Constraint("Symmetric", 0, 2, 8, 2, -1, 1))
sketch10.addConstraint(Sketcher.Constraint("Symmetric", 2, 2, 10, 2, -1, 1))
sketch10.addConstraint(Sketcher.Constraint("Symmetric", 3, 2, 11, 2, -1, 1))
sketch10.addConstraint(Sketcher.Constraint("Symmetric", 4, 2, 12, 2, -1, 1))
sketch10.addConstraint(Sketcher.Constraint("Symmetric", 6, 2, 14, 2, -1, 1))
sketch10.addConstraint(Sketcher.Constraint("Symmetric", 7, 2, 15, 2, -1, 1))
sketch10.addConstraint(Sketcher.Constraint("Symmetric", 6, 2, 8, 2, -2))
sketch10.addConstraint(Sketcher.Constraint("Symmetric", 4, 2, 10, 2, -2))
sketch10.addConstraint(Sketcher.Constraint("PointOnObject", 3, 2, -1))
sketch10.addConstraint(Sketcher.Constraint("PointOnObject", 7, 2, -2))
sketch10.addConstraint(Sketcher.Constraint("Parallel", 0, 3))
sketch10.addConstraint(Sketcher.Constraint("Perpendicular", 3, 4))
sketch10.addConstraint(Sketcher.Constraint("Equal", 14, 2))
sketch10.addConstraint(Sketcher.Constraint("Equal", 0, 3))
sketch10.addConstraint(Sketcher.Constraint("DistanceX", 3, 2, -1, 1, Q("300 mm")))
sketch10.addConstraint(Sketcher.Constraint("DistanceX", 1, 2, 1, 1, Q("124.26407 mm")))
pocket8 = body.newObject("PartDesign::Pocket", "Pocket007")
pocket8.Profile = sketch10
pocket8.Length = 50

# Sketch on XY plane
sketch11 = body.newObject("Sketcher::SketchObject", "Sketch010")
sketch11.AttachmentSupport = (doc.getObject("XY_Plane"), [""])
sketch11.MapMode = "FlatFace"
sketch11.AttachmentOffset = App.Placement(V(0, 0, 50), App.Rotation())
sketch11.addGeometry(Part.LineSegment(V(0, 200, 0), V(-59, 141, 0)), False)
sketch11.addGeometry(Part.LineSegment(V(-59, 141, 0), V(-141, 141, 0)), False)
sketch11.addGeometry(Part.LineSegment(V(-141, 141, 0), V(-141, 59, 0)), False)
sketch11.addGeometry(Part.LineSegment(V(-141, 59, 0), V(-200, 0, 0)), False)
sketch11.addGeometry(Part.LineSegment(V(-200, 0, 0), V(-141, -59, 0)), False)
sketch11.addGeometry(Part.LineSegment(V(-141, -59, 0), V(-141, -141, 0)), False)
sketch11.addGeometry(Part.LineSegment(V(-141, -141, 0), V(-59, -141, 0)), False)
sketch11.addGeometry(Part.LineSegment(V(-59, -141, 0), V(0, -200, 0)), False)
sketch11.addGeometry(Part.LineSegment(V(0, -200, 0), V(59, -141, 0)), False)
sketch11.addGeometry(Part.LineSegment(V(59, -141, 0), V(141, -141, 0)), False)
sketch11.addGeometry(Part.LineSegment(V(141, -141, 0), V(141, -59, 0)), False)
sketch11.addGeometry(Part.LineSegment(V(141, -59, 0), V(200, 0, 0)), False)
sketch11.addGeometry(Part.LineSegment(V(200, 0, 0), V(141, 59, 0)), False)
sketch11.addGeometry(Part.LineSegment(V(141, 59, 0), V(141, 141, 0)), False)
sketch11.addGeometry(Part.LineSegment(V(141, 141, 0), V(59, 141, 0)), False)
sketch11.addGeometry(Part.LineSegment(V(59, 141, 0), V(0, 200, 0)), False)
sketch11.addConstraint(Sketcher.Constraint("Coincident", 0, 2, 1, 1))
sketch11.addConstraint(Sketcher.Constraint("Coincident", 1, 2, 2, 1))
sketch11.addConstraint(Sketcher.Constraint("Coincident", 2, 2, 3, 1))
sketch11.addConstraint(Sketcher.Constraint("Coincident", 3, 2, 4, 1))
sketch11.addConstraint(Sketcher.Constraint("Coincident", 4, 2, 5, 1))
sketch11.addConstraint(Sketcher.Constraint("Coincident", 5, 2, 6, 1))
sketch11.addConstraint(Sketcher.Constraint("Coincident", 6, 2, 7, 1))
sketch11.addConstraint(Sketcher.Constraint("Coincident", 7, 2, 8, 1))
sketch11.addConstraint(Sketcher.Constraint("Coincident", 8, 2, 9, 1))
sketch11.addConstraint(Sketcher.Constraint("Coincident", 9, 2, 10, 1))
sketch11.addConstraint(Sketcher.Constraint("Coincident", 10, 2, 11, 1))
sketch11.addConstraint(Sketcher.Constraint("Coincident", 11, 2, 12, 1))
sketch11.addConstraint(Sketcher.Constraint("Coincident", 12, 2, 13, 1))
sketch11.addConstraint(Sketcher.Constraint("Coincident", 13, 2, 14, 1))
sketch11.addConstraint(Sketcher.Constraint("Coincident", 14, 2, 15, 1))
sketch11.addConstraint(Sketcher.Constraint("Coincident", 15, 2, 0, 1))
sketch11.addConstraint(Sketcher.Constraint("Horizontal", 1))
sketch11.addConstraint(Sketcher.Constraint("Vertical", 2))
sketch11.addConstraint(Sketcher.Constraint("Vertical", 5))
sketch11.addConstraint(Sketcher.Constraint("Horizontal", 6))
sketch11.addConstraint(Sketcher.Constraint("Horizontal", 9))
sketch11.addConstraint(Sketcher.Constraint("Vertical", 10))
sketch11.addConstraint(Sketcher.Constraint("Vertical", 13))
sketch11.addConstraint(Sketcher.Constraint("Horizontal", 14))
sketch11.addConstraint(Sketcher.Constraint("Symmetric", 0, 2, 8, 2, -1, 1))
sketch11.addConstraint(Sketcher.Constraint("Symmetric", 2, 2, 10, 2, -1, 1))
sketch11.addConstraint(Sketcher.Constraint("Symmetric", 3, 2, 11, 2, -1, 1))
sketch11.addConstraint(Sketcher.Constraint("Symmetric", 4, 2, 12, 2, -1, 1))
sketch11.addConstraint(Sketcher.Constraint("Symmetric", 6, 2, 14, 2, -1, 1))
sketch11.addConstraint(Sketcher.Constraint("Symmetric", 7, 2, 15, 2, -1, 1))
sketch11.addConstraint(Sketcher.Constraint("Symmetric", 6, 2, 8, 2, -2))
sketch11.addConstraint(Sketcher.Constraint("Symmetric", 4, 2, 10, 2, -2))
sketch11.addConstraint(Sketcher.Constraint("PointOnObject", 3, 2, -1))
sketch11.addConstraint(Sketcher.Constraint("PointOnObject", 7, 2, -2))
sketch11.addConstraint(Sketcher.Constraint("Parallel", 0, 3))
sketch11.addConstraint(Sketcher.Constraint("Perpendicular", 3, 4))
sketch11.addConstraint(Sketcher.Constraint("Equal", 14, 2))
sketch11.addConstraint(Sketcher.Constraint("Equal", 0, 3))
sketch11.addConstraint(Sketcher.Constraint("DistanceX", 3, 2, -1, 1, Q("200 mm")))
sketch11.addConstraint(Sketcher.Constraint("DistanceX", 1, 2, 1, 1, Q("82.84271 mm")))
pad3 = body.newObject("PartDesign::Pad", "Pad002")
pad3.Profile = sketch11
pad3.Length = 50

doc.recompute()
